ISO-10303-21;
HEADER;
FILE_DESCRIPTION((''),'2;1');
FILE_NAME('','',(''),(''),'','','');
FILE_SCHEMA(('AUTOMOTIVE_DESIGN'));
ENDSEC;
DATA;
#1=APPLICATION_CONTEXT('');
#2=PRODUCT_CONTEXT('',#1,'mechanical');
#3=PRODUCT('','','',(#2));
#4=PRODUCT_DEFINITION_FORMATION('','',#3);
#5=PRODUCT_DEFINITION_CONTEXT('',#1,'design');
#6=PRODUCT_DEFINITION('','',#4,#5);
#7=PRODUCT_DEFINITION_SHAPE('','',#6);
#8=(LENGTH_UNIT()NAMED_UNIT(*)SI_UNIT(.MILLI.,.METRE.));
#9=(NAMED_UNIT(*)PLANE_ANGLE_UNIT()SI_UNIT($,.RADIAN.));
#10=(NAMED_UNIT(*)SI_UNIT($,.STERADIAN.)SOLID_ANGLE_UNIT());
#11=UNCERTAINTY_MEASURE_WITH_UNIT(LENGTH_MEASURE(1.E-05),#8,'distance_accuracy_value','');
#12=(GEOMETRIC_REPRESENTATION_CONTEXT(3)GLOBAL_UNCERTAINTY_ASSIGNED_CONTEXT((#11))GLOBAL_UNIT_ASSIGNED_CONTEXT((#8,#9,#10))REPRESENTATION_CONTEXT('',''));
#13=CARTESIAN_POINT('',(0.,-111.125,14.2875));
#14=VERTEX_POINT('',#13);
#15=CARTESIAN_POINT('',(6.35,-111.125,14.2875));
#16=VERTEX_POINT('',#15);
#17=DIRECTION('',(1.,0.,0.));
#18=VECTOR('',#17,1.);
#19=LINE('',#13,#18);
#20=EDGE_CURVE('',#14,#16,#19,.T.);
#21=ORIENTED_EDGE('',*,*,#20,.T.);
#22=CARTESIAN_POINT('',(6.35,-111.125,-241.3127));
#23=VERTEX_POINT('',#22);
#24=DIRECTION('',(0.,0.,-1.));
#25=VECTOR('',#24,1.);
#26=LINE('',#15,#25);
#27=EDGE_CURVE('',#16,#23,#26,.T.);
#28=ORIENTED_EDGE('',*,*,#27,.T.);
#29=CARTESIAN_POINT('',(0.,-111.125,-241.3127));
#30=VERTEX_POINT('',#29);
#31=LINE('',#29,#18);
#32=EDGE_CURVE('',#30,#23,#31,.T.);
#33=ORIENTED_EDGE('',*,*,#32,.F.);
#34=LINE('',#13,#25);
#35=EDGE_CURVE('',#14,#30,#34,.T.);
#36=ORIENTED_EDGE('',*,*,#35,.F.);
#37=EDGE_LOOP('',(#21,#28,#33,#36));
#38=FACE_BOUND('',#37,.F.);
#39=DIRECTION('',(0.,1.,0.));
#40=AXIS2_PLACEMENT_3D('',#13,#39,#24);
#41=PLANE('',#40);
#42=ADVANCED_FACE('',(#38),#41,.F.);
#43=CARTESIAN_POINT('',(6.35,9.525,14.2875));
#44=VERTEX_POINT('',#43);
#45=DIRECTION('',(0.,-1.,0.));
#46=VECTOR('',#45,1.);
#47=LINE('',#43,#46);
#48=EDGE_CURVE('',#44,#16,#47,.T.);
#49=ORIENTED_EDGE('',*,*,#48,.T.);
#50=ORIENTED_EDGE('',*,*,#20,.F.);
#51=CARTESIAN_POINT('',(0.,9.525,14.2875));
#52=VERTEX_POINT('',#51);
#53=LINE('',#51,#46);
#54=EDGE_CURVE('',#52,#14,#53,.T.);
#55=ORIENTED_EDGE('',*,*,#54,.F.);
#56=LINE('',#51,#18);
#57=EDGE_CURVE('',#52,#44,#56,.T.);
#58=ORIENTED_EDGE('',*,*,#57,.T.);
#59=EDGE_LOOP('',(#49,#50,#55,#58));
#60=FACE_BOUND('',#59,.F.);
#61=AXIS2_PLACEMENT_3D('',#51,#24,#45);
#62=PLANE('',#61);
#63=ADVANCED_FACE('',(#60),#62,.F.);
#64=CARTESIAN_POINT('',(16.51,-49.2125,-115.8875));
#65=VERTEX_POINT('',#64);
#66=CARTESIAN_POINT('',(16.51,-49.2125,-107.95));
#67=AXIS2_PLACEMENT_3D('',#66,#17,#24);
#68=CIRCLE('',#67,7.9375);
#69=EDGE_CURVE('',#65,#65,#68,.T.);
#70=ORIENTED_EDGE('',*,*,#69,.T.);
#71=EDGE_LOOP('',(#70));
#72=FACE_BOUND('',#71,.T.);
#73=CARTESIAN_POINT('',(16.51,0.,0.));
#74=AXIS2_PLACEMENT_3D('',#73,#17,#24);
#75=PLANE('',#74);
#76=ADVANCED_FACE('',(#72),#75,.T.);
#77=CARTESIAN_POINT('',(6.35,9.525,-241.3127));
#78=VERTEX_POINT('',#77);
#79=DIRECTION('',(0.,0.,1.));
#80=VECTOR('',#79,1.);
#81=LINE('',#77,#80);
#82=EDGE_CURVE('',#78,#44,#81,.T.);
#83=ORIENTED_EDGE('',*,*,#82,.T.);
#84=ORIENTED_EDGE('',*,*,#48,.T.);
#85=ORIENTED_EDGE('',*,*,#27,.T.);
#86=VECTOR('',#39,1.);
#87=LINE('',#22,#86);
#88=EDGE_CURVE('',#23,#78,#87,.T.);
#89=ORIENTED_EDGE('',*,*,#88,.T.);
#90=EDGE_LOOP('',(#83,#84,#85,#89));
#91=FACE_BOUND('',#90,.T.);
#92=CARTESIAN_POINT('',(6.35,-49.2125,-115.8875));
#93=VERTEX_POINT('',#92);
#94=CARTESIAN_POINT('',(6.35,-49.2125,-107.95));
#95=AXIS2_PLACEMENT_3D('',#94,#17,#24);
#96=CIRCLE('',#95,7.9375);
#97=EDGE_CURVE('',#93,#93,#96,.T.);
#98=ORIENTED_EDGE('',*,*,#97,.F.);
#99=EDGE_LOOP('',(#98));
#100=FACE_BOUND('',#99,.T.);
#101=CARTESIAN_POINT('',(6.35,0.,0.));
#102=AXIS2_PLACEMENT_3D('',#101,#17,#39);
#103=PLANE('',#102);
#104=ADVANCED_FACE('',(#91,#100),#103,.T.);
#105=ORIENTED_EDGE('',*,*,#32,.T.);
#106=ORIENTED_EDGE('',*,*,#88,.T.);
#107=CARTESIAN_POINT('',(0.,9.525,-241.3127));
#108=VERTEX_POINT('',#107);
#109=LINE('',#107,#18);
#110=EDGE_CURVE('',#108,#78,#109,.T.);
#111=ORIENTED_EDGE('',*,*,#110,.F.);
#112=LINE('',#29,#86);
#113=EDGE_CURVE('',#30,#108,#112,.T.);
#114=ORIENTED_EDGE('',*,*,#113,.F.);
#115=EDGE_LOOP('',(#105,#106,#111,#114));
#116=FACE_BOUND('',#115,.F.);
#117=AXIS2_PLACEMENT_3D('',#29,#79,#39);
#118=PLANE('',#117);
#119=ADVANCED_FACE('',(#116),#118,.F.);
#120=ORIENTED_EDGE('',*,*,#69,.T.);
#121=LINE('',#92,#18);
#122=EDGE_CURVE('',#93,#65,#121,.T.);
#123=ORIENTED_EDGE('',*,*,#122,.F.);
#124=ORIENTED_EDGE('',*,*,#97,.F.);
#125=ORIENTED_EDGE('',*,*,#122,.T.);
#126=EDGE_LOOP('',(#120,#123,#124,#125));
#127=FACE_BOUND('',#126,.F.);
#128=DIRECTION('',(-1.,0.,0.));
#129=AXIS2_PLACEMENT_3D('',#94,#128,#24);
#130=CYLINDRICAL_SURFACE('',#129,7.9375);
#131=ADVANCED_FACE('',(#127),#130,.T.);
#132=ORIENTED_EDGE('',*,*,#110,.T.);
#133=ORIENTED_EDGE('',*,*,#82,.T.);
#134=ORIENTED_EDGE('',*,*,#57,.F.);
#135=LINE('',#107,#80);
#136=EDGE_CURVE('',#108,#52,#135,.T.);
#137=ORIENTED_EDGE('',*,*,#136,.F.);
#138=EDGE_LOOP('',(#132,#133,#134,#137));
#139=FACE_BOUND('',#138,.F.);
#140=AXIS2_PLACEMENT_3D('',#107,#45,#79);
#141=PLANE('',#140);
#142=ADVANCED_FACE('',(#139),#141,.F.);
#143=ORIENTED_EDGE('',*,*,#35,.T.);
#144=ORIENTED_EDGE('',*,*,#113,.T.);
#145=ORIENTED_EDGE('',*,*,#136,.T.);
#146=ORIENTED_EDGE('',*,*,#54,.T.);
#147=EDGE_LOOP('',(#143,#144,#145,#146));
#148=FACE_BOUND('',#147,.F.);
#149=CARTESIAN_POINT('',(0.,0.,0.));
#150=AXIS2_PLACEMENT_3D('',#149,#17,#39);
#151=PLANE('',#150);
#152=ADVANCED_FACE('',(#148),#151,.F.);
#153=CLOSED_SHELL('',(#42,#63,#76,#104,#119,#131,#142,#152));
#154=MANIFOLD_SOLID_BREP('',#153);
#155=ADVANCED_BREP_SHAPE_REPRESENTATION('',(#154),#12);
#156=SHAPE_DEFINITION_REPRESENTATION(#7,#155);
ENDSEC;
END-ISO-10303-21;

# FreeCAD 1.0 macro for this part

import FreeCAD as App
import Part
import Sketcher
Q = App.Units.Quantity

doc = App.newDocument("Part")
params = doc.addObject("Spreadsheet::Sheet", "Params")
for row, (alias, value) in enumerate([
    ("sketch1_width", "4.75 in"),
    ("sketch1_height", "10.063 in"),
    ("pad1_length", "0.25 in"),
    ("sketch2_diameter", "0.625 in"),
    ("pad2_length", "0.4 in"),
], start=1):
    params.set(f"A{row}", alias)
    params.set(f"B{row}", "=" + value)
    params.setAlias(f"B{row}", alias)

body = doc.addObject("PartDesign::Body", "Body")

# Sketch on YZ plane
sketch1 = body.newObject("Sketcher::SketchObject", "Sketch")
sketch1.AttachmentSupport = (doc.getObject("YZ_Plane"), [""])
sketch1.MapMode = "FlatFace"
sketch1.addGeometry([
    Part.LineSegment(App.Vector(10, -241, 0), App.Vector(10, 14, 0)),
    Part.LineSegment(App.Vector(10, 14, 0), App.Vector(-111, 14, 0)),
    Part.LineSegment(App.Vector(-111, 14, 0), App.Vector(-111, -241, 0)),
    Part.LineSegment(App.Vector(-111, -241, 0), App.Vector(10, -241, 0)),
], False)
sketch1.addConstraint([
    Sketcher.Constraint("Coincident", 0, 2, 1, 1),
    Sketcher.Constraint("Coincident", 1, 2, 2, 1),
    Sketcher.Constraint("Coincident", 2, 2, 3, 1),
    Sketcher.Constraint("Coincident", 3, 2, 0, 1),
    Sketcher.Constraint("Vertical", 0),
    Sketcher.Constraint("Horizontal", 1),
    Sketcher.Constraint("Vertical", 2),
    Sketcher.Constraint("Horizontal", 3),
    Sketcher.Constraint("DistanceX", 1, 2, 1, 1, Q("4.75 in")),
    Sketcher.Constraint("DistanceY", 0, 1, 0, 2, Q("10.063 in")),
    Sketcher.Constraint("DistanceX", -1, 1, 0, 2, Q("0.375 in")),
    Sketcher.Constraint("DistanceY", -1, 1, 0, 2, Q("0.5625 in")),
])
sketch1.setExpression("Constraints[8]", "Params.sketch1_width")
sketch1.setExpression("Constraints[9]", "Params.sketch1_height")
pad1 = body.newObject("PartDesign::Pad", "Pad")
pad1.Profile = sketch1
pad1.setExpression("Length", "Params.pad1_length")

# Sketch on YZ plane
sketch2 = body.newObject("Sketcher::SketchObject", "Sketch001")
sketch2.AttachmentSupport = (doc.getObject("YZ_Plane"), [""])
sketch2.MapMode = "FlatFace"
sketch2.AttachmentOffset = App.Placement(App.Vector(0, 0, 0.25 * 25.4), App.Rotation())
sketch2.addGeometry(Part.Circle(App.Vector(-49, -108, 0), App.Vector(0, 0, 1), 8), False)
sketch2.addConstraint([
    Sketcher.Constraint("Diameter", 0, Q("0.625 in")),
    Sketcher.Constraint("DistanceY", 0, 3, -1, 1, Q("4.25 in")),
    Sketcher.Constraint("DistanceX", 0, 3, -1, 1, Q("1.9375 in")),
])
sketch2.setExpression("Constraints[0]", "Params.sketch2_diameter")
pad2 = body.newObject("PartDesign::Pad", "Pad001")
pad2.Profile = sketch2
pad2.setExpression("Length", "Params.pad2_length")

doc.recompute()
